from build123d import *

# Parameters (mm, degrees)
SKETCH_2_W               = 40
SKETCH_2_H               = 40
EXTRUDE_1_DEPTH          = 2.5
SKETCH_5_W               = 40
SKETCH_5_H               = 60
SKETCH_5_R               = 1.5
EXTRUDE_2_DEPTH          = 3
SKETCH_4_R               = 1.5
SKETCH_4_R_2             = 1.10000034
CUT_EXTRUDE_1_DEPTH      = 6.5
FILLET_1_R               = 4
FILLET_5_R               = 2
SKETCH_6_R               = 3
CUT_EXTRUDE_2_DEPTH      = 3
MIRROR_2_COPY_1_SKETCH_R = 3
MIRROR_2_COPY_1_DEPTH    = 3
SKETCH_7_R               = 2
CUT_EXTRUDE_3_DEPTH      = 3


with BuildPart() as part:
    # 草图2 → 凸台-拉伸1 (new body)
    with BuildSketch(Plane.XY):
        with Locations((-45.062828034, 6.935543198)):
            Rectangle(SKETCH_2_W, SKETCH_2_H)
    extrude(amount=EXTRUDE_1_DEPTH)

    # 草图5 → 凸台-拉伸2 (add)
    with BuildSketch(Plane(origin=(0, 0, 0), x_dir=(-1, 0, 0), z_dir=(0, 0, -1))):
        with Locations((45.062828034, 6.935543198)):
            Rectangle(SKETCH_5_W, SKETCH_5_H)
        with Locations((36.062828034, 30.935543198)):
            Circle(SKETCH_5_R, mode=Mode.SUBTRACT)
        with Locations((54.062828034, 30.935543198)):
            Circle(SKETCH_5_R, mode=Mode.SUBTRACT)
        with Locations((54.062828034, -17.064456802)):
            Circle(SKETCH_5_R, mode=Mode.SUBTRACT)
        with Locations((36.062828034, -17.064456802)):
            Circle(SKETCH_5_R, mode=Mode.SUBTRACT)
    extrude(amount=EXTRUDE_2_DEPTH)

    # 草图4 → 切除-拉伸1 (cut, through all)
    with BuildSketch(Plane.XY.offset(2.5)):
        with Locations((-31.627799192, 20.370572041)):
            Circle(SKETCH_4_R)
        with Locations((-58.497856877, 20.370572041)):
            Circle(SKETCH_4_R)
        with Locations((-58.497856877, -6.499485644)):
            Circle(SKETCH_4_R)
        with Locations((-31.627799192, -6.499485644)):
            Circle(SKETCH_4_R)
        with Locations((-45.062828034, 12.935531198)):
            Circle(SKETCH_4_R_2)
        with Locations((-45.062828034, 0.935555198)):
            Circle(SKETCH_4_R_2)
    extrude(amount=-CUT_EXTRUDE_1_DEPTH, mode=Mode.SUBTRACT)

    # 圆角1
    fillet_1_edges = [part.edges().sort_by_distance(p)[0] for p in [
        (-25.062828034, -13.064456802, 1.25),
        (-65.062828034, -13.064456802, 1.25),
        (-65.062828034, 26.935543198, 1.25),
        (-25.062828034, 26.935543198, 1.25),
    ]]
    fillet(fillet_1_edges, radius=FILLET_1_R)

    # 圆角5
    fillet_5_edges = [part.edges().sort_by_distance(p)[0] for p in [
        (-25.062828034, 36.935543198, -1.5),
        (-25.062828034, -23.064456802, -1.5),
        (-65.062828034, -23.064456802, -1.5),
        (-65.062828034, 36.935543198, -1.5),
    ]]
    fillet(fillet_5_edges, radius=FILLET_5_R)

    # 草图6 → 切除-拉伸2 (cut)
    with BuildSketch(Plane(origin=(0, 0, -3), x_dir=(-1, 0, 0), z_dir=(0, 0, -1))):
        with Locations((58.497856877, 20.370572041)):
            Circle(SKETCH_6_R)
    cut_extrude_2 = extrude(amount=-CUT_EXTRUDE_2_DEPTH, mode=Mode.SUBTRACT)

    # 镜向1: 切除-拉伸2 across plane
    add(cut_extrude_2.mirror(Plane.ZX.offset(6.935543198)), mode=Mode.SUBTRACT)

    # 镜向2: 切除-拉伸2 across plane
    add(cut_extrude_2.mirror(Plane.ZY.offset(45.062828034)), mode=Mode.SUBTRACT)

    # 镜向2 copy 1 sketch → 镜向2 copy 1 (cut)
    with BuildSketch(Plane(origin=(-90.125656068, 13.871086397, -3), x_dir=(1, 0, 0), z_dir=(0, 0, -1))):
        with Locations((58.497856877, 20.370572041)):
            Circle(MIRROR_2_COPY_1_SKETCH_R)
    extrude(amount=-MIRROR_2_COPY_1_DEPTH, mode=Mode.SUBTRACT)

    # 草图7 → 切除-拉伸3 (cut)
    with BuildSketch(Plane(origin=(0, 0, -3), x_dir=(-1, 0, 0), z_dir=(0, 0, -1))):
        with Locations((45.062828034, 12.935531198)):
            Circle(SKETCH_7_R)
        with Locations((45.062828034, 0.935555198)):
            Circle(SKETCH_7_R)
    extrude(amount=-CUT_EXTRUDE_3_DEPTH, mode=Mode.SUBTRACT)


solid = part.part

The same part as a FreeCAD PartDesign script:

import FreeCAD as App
import Part
import Sketcher

V = App.Vector


def edges_at(feature, points):
    """Names of the edges that pass closest to the given points."""
    edges = feature.Shape.Edges
    near = lambda p: min(range(len(edges)), key=lambda i: edges[i].distToShape(Part.Vertex(*p))[0])
    return sorted({f"Edge{near(p) + 1}" for p in points})


def add_polygon(sketch, points):
    """Adds a closed chain of lines whose ends are joined by coincident constraints."""
    first, n = sketch.GeometryCount, len(points)
    for a, b in zip(points, points[1:] + points[:1]):
        sketch.addGeometry(Part.LineSegment(App.Vector(*a, 0), App.Vector(*b, 0)), False)
    for i in range(n):
        sketch.addConstraint(Sketcher.Constraint("Coincident", first + i, 2, first + (i + 1) % n, 1))

doc = App.newDocument("Part")
body = doc.addObject("PartDesign::Body", "Body")

sketch1 = doc.addObject("Sketcher::SketchObject", "Sketch")
body.addObject(sketch1)
sketch1.AttachmentSupport = (doc.XY_Plane, [""])
sketch1.MapMode = "FlatFace"
add_polygon(sketch1, [(-65.062828, 26.935543), (-65.062828, -13.064457), (-25.062828, -13.064457), (-25.062828, 26.935543)])
sketch1.addConstraint([
    Sketcher.Constraint("Vertical", 0),
    Sketcher.Constraint("Horizontal", 1),
    Sketcher.Constraint("Vertical", 2),
    Sketcher.Constraint("Horizontal", 3),
    Sketcher.Constraint("Equal", 3, 0),
    Sketcher.Constraint("DistanceX", 1, 1, 1, 2, 40.0),
    Sketcher.Constraint("DistanceX", 0, 2, -1, 1, 65.062828),
    Sketcher.Constraint("DistanceY", 0, 2, -1, 1, 13.064457),
])
pad1 = doc.addObject("PartDesign::Pad", "Pad")
body.addObject(pad1)
pad1.Profile = sketch1
pad1.Length = 2.5

sketch2 = doc.addObject("Sketcher::SketchObject", "Sketch001")
body.addObject(sketch2)
sketch2.AttachmentSupport = (doc.XY_Plane, [""])
sketch2.MapMode = "FlatFace"
add_polygon(sketch2, [(-25.062828, 36.935543), (-25.062828, -23.064457), (-65.062828, -23.064457), (-65.062828, 36.935543)])
sketch2.addGeometry(Part.Circle(V(-36.062828, -17.064457, 0), V(0, 0, 1), 1.5), False)
sketch2.addGeometry(Part.Circle(V(-54.062828, -17.064457, 0), V(0, 0, 1), 1.5), False)
sketch2.addGeometry(Part.Circle(V(-36.062828, 30.935543, 0), V(0, 0, 1), 1.5), False)
sketch2.addGeometry(Part.Circle(V(-54.062828, 30.935543, 0), V(0, 0, 1), 1.5), False)
sketch2.addConstraint([
    Sketcher.Constraint("Vertical", 0),
    Sketcher.Constraint("Horizontal", 1),
    Sketcher.Constraint("Vertical", 2),
    Sketcher.Constraint("Horizontal", 3),
    Sketcher.Constraint("Equal", 4, 5),
    Sketcher.Constraint("Equal", 5, 6),
    Sketcher.Constraint("Equal", 6, 7),
    Sketcher.Constraint("Horizontal", 4, 3, 5, 3),
    Sketcher.Constraint("Horizontal", 6, 3, 7, 3),
    Sketcher.Constraint("Vertical", 4, 3, 6, 3),
    Sketcher.Constraint("Vertical", 5, 3, 7, 3),
    Sketcher.Constraint("Diameter", 4, 3.0),
    Sketcher.Constraint("DistanceX", 1, 2, 1, 1, 40.0),
    Sketcher.Constraint("DistanceY", 0, 2, 0, 1, 60.0),
    Sketcher.Constraint("DistanceX", 5, 3, 4, 3, 18.0),
    Sketcher.Constraint("DistanceY", 4, 3, 6, 3, 48.0),
    Sketcher.Constraint("DistanceX", 4, 3, 0, 2, 11.0),
    Sketcher.Constraint("DistanceY", 0, 2, 4, 3, 6.0),
    Sketcher.Constraint("DistanceX", 4, 3, -1, 1, 36.062828),
    Sketcher.Constraint("DistanceY", 4, 3, -1, 1, 17.064457),
])
pad2 = doc.addObject("PartDesign::Pad", "Pad001")
body.addObject(pad2)
pad2.Profile = sketch2
pad2.Length = 3
pad2.Reversed = True

sketch3 = doc.addObject("Sketcher::SketchObject", "Sketch002")
body.addObject(sketch3)
sketch3.AttachmentSupport = (doc.XY_Plane, [""])
sketch3.MapMode = "FlatFace"
sketch3.AttachmentOffset = App.Placement(V(0, 0, 2.5), App.Rotation())
sketch3.addGeometry([
    Part.Circle(V(-31.627799, 20.370572, 0), V(0, 0, 1), 1.5),
    Part.Circle(V(-58.497857, 20.370572, 0), V(0, 0, 1), 1.5),
    Part.Circle(V(-58.497857, -6.499486, 0), V(0, 0, 1), 1.5),
    Part.Circle(V(-31.627799, -6.499486, 0), V(0, 0, 1), 1.5),
    Part.Circle(V(-45.062828, 12.935531, 0), V(0, 0, 1), 1.1),
    Part.Circle(V(-45.062828, 0.935555, 0), V(0, 0, 1), 1.1),
], False)
sketch3.addConstraint([
    Sketcher.Constraint("Equal", 0, 1),
    Sketcher.Constraint("Equal", 1, 2),
    Sketcher.Constraint("Equal", 2, 3),
    Sketcher.Constraint("Equal", 4, 5),
    Sketcher.Constraint("Horizontal", 0, 3, 1, 3),
    Sketcher.Constraint("Horizontal", 2, 3, 3, 3),
    Sketcher.Constraint("Vertical", 1, 3, 2, 3),
    Sketcher.Constraint("Vertical", 0, 3, 3, 3),
    Sketcher.Constraint("Vertical", 4, 3, 5, 3),
    Sketcher.Constraint("Diameter", 0, 3.0),
    Sketcher.Constraint("Diameter", 4, 2.200001),
    Sketcher.Constraint("DistanceX", 0, 3, -1, 1, 31.627799),
    Sketcher.Constraint("DistanceX", 4, 3, -1, 1, 45.062828),
    Sketcher.Constraint("DistanceY", -1, 1, 4, 3, 12.935531),
    Sketcher.Constraint("DistanceY", 4, 3, 0, 3, 7.435041),
    Sketcher.Constraint("DistanceX", 1, 3, 4, 3, 13.435029),
    Sketcher.Constraint("DistanceY", 3, 3, 5, 3, 7.435041),
    Sketcher.Constraint("DistanceY", 2, 3, -1, 1, 6.499486),
])
pocket1 = doc.addObject("PartDesign::Pocket", "Pocket")
body.addObject(pocket1)
pocket1.Profile = sketch3
pocket1.Type = "ThroughAll"
doc.recompute()

fillet = doc.addObject("PartDesign::Fillet", "Fillet")
body.addObject(fillet)
fillet.Base = (pocket1, edges_at(pocket1, [
    (-25.063, -13.064, 1.25),
    (-65.063, -13.064, 1.25),
    (-65.063, 26.936, 1.25),
    (-25.063, 26.936, 1.25),
]))
fillet.Radius = 4
doc.recompute()

fillet2 = doc.addObject("PartDesign::Fillet", "Fillet001")
body.addObject(fillet2)
fillet2.Base = (fillet, edges_at(fillet, [
    (-25.063, 36.936, -1.5),
    (-25.063, -23.064, -1.5),
    (-65.063, -23.064, -1.5),
    (-65.063, 36.936, -1.5),
]))
fillet2.Radius = 2

sketch4 = doc.addObject("Sketcher::SketchObject", "Sketch003")
body.addObject(sketch4)
sketch4.AttachmentSupport = (doc.XY_Plane, [""])
sketch4.MapMode = "FlatFace"
sketch4.AttachmentOffset = App.Placement(V(0, 0, -3), App.Rotation())
sketch4.addGeometry(Part.Circle(V(-58.497857, 20.370572, 0), V(0, 0, 1), 3), False)
sketch4.addConstraint([
    Sketcher.Constraint("Diameter", 0, 6.0),
    Sketcher.Constraint("DistanceX", 0, 3, -1, 1, 58.497857),
    Sketcher.Constraint("DistanceY", -1, 1, 0, 3, 20.370572),
])
pocket2 = doc.addObject("PartDesign::Pocket", "Pocket001")
body.addObject(pocket2)
pocket2.Profile = sketch4
pocket2.Length = 3
pocket2.Reversed = True
doc.recompute()

datumplane = doc.addObject("PartDesign::Plane", "DatumPlane")
body.addObject(datumplane)
datumplane.AttachmentSupport = (doc.XZ_Plane, [""])
datumplane.MapMode = "FlatFace"
datumplane.AttachmentOffset = App.Placement(V(0, 0, -6.935543), App.Rotation())
mirrored = doc.addObject("PartDesign::Mirrored", "Mirrored")
body.addObject(mirrored)
mirrored.Originals = [pocket2]
mirrored.MirrorPlane = (datumplane, [""])
body.Tip = mirrored
doc.recompute()

datumplane2 = doc.addObject("PartDesign::Plane", "DatumPlane001")
body.addObject(datumplane2)
datumplane2.AttachmentSupport = (doc.YZ_Plane, [""])
datumplane2.MapMode = "FlatFace"
datumplane2.AttachmentOffset = App.Placement(V(0, 0, -45.062828), App.Rotation())
mirrored2 = doc.addObject("PartDesign::Mirrored", "Mirrored001")
body.addObject(mirrored2)
mirrored2.Originals = [pocket2]
mirrored2.MirrorPlane = (datumplane2, [""])
body.Tip = mirrored2

sketch5 = doc.addObject("Sketcher::SketchObject", "Sketch004")
body.addObject(sketch5)
sketch5.AttachmentSupport = (doc.XY_Plane, [""])
sketch5.MapMode = "FlatFace"
sketch5.AttachmentOffset = App.Placement(V(0, 0, -3), App.Rotation())
sketch5.addGeometry(Part.Circle(V(-31.627799, -6.499486, 0), V(0, 0, 1), 3), False)
sketch5.addConstraint([
    Sketcher.Constraint("Diameter", 0, 6.0),
    Sketcher.Constraint("DistanceX", 0, 3, -1, 1, 31.627799),
    Sketcher.Constraint("DistanceY", 0, 3, -1, 1, 6.499486),
])
pocket3 = doc.addObject("PartDesign::Pocket", "Pocket002")
body.addObject(pocket3)
pocket3.Profile = sketch5
pocket3.Length = 3
pocket3.Reversed = True

sketch6 = doc.addObject("Sketcher::SketchObject", "Sketch005")
body.addObject(sketch6)
sketch6.AttachmentSupport = (doc.XY_Plane, [""])
sketch6.MapMode = "FlatFace"
sketch6.AttachmentOffset = App.Placement(V(0, 0, -3), App.Rotation())
sketch6.addGeometry([
    Part.Circle(V(-45.062828, 12.935531, 0), V(0, 0, 1), 2),
    Part.Circle(V(-45.062828, 0.935555, 0), V(0, 0, 1), 2),
], False)
sketch6.addConstraint([
    Sketcher.Constraint("Equal", 0, 1),
    Sketcher.Constraint("Vertical", 0, 3, 1, 3),
    Sketcher.Constraint("Diameter", 0, 4.0),
    Sketcher.Constraint("DistanceX", 0, 3, -1, 1, 45.062828),
    Sketcher.Constraint("DistanceY", -1, 1, 0, 3, 12.935531),
    Sketcher.Constraint("DistanceY", -1, 1, 1, 3, 0.935555),
])
pocket4 = doc.addObject("PartDesign::Pocket", "Pocket003")
body.addObject(pocket4)
pocket4.Profile = sketch6
pocket4.Length = 3
pocket4.Reversed = True

doc.recompute()
